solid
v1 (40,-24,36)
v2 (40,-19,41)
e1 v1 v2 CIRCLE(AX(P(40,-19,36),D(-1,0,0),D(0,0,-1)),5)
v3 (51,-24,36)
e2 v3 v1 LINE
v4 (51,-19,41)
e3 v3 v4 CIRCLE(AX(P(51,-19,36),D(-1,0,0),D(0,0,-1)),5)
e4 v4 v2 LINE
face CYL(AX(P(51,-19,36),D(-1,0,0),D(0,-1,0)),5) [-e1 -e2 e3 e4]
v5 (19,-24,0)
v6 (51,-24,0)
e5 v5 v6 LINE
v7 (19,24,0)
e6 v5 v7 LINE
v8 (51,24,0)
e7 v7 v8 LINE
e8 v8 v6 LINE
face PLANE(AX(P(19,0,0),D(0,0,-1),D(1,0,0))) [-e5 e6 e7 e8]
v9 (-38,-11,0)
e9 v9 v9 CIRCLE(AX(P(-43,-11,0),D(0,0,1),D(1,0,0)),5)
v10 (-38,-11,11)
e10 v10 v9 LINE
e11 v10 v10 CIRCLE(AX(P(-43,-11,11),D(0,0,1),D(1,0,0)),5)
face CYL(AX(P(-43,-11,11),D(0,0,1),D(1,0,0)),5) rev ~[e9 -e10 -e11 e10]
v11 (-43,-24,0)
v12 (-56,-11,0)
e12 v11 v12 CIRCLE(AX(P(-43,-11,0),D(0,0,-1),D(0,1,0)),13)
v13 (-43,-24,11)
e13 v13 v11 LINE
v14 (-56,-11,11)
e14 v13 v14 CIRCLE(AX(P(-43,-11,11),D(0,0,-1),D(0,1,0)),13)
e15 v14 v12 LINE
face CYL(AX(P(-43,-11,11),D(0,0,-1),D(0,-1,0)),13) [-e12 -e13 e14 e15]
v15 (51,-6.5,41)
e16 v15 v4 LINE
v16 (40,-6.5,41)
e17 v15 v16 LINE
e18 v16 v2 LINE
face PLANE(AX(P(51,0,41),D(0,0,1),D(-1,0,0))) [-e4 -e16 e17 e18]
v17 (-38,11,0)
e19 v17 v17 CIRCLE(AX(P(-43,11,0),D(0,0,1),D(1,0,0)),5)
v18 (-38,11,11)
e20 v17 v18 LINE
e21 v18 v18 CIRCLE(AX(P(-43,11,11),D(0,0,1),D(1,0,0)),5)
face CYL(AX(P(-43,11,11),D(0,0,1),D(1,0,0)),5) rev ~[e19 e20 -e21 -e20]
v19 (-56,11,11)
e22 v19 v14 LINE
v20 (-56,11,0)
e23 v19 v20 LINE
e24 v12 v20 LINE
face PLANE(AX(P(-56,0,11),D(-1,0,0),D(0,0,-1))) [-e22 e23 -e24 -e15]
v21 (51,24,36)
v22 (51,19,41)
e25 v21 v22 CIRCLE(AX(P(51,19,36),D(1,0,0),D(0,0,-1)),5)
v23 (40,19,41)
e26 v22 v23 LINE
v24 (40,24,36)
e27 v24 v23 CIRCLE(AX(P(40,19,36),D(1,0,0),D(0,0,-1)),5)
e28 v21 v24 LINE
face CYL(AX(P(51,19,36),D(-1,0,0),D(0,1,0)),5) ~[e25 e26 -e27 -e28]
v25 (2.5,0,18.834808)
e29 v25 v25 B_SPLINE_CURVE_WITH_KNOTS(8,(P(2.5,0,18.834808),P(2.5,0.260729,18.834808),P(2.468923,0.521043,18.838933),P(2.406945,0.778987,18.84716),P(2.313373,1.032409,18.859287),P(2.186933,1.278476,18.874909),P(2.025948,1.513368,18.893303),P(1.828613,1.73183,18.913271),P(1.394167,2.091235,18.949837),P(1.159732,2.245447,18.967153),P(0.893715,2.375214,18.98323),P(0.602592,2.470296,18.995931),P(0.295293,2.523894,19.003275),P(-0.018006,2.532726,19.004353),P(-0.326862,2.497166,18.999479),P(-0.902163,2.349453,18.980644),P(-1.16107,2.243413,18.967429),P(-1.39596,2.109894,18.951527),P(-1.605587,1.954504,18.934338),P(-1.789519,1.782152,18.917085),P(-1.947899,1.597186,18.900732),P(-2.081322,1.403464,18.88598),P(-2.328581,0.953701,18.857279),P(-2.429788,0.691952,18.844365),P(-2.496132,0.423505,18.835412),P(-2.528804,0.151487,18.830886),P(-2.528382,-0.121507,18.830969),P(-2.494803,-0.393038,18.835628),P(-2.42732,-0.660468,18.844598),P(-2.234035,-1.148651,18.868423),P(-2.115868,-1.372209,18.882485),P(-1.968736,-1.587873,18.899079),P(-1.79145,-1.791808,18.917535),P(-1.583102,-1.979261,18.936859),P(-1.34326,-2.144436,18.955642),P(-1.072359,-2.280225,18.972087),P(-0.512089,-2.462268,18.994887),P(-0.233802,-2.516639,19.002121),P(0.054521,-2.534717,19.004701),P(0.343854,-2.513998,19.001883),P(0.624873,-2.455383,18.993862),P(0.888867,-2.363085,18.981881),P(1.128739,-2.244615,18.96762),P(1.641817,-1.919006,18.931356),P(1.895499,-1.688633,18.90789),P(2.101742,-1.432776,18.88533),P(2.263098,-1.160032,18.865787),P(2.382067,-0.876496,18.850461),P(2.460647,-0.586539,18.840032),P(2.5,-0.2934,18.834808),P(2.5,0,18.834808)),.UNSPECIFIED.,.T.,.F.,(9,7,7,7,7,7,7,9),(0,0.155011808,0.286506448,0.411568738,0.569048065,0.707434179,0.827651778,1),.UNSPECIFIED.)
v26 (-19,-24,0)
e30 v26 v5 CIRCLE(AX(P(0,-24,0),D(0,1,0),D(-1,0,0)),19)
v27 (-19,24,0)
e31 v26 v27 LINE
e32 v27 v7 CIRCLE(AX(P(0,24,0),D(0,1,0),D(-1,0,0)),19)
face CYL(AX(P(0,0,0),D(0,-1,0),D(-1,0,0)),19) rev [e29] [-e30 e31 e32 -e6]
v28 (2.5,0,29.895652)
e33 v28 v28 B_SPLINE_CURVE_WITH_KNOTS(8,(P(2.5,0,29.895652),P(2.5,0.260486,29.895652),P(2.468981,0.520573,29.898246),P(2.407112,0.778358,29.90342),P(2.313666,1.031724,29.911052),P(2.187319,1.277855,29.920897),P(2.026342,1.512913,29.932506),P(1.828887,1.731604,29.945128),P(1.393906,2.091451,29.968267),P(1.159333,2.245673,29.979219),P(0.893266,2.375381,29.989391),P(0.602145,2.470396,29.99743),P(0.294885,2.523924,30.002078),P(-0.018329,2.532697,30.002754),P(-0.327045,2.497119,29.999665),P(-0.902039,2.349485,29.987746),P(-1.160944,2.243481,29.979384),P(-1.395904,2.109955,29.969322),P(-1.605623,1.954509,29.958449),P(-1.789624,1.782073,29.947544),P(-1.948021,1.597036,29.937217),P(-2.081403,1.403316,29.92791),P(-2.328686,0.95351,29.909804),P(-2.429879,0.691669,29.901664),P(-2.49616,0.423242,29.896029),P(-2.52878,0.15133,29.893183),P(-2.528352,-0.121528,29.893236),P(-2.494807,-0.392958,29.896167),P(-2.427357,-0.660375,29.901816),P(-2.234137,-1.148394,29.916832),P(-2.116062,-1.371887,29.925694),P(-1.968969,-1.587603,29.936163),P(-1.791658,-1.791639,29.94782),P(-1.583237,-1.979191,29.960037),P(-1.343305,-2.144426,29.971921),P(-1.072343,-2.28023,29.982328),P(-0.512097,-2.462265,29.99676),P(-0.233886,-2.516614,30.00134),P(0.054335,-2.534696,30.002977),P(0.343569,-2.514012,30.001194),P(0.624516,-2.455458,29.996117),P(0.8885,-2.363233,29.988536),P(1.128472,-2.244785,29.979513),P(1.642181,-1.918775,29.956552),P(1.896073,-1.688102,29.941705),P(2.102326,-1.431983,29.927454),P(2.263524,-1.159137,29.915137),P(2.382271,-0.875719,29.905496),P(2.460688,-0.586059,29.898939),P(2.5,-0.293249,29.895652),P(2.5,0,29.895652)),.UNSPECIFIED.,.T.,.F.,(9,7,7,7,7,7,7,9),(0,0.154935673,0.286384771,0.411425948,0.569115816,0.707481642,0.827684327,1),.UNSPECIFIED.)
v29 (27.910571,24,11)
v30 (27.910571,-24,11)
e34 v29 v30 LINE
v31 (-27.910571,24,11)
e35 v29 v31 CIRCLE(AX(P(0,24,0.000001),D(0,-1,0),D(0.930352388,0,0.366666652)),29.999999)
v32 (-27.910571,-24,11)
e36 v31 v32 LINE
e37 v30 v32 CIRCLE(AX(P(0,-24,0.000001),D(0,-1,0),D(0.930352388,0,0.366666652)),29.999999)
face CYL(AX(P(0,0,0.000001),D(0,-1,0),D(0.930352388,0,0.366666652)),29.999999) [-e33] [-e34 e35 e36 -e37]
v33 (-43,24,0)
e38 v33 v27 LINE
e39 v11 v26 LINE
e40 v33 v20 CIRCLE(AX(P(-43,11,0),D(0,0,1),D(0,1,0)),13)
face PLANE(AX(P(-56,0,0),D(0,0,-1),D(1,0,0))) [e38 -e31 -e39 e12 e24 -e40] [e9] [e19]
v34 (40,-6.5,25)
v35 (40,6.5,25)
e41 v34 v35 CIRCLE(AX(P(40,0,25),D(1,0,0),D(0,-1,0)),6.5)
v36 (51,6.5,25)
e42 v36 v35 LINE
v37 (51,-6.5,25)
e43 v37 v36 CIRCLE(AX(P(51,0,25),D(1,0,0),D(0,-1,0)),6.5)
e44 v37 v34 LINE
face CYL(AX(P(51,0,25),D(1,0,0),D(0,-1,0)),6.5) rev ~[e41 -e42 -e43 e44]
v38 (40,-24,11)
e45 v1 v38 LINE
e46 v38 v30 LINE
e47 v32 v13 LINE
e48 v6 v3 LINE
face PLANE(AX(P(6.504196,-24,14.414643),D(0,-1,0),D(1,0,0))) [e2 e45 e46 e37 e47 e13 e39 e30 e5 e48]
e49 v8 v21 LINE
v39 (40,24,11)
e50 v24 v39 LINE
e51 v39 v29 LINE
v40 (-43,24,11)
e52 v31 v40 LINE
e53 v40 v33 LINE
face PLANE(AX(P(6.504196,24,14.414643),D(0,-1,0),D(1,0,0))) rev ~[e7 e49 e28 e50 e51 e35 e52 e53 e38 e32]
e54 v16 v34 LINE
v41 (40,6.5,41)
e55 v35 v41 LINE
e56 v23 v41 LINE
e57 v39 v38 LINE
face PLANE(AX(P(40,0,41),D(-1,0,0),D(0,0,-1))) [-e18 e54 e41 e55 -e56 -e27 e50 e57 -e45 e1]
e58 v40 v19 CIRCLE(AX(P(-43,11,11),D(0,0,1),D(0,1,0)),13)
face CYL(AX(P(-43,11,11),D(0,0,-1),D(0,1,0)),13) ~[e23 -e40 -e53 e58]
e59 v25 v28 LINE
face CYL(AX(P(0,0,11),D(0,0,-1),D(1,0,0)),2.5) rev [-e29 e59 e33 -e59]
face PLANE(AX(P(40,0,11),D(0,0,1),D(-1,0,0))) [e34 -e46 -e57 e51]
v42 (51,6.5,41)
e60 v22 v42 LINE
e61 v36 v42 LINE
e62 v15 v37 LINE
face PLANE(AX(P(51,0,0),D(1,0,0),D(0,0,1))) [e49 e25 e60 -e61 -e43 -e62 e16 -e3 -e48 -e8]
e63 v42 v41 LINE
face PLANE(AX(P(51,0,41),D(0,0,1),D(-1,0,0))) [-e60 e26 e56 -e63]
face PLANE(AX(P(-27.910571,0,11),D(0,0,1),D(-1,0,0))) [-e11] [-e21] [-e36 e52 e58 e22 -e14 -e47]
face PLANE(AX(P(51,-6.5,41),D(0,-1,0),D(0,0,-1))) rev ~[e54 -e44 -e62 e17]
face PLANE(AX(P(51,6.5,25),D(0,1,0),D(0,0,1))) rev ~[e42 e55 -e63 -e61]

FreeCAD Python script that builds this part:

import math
import FreeCAD as App
import Part
import Sketcher
from FreeCAD import Vector


def edges_at(feature, points):
    """Names of the edges that pass closest to the given points."""
    edges = feature.Shape.Edges
    near = lambda p: min(range(len(edges)), key=lambda i: edges[i].distToShape(Part.Vertex(*p))[0])
    return sorted({f"Edge{near(p) + 1}" for p in points})

doc = App.newDocument("Part")
body = doc.addObject("PartDesign::Body", "Body")

# Sketch on XZ plane
sketch1 = body.newObject("Sketcher::SketchObject", "Sketch")
sketch1.AttachmentSupport = (doc.getObject("XZ_Plane"), [""])
sketch1.MapMode = "FlatFace"
sketch1.addGeometry(Part.LineSegment(Vector(19, 0, 0), Vector(51, 0, 0)), False)
sketch1.addGeometry(Part.LineSegment(Vector(51, 0, 0), Vector(51, 41, 0)), False)
sketch1.addGeometry(Part.LineSegment(Vector(51, 41, 0), Vector(40, 41, 0)), False)
sketch1.addGeometry(Part.LineSegment(Vector(40, 41, 0), Vector(40, 11, 0)), False)
sketch1.addGeometry(Part.LineSegment(Vector(40, 11, 0), Vector(27.910571, 11, 0)), False)
sketch1.addGeometry(Part.ArcOfCircle(Part.Circle(Vector(0, 0.000001, 0), Vector(0, 0, 1), 29.999999), math.radians(21.510187), math.radians(158.489813)), False)
sketch1.addGeometry(Part.LineSegment(Vector(-27.910571, 11, 0), Vector(-56, 11, 0)), False)
sketch1.addGeometry(Part.LineSegment(Vector(-56, 11, 0), Vector(-56, 0, 0)), False)
sketch1.addGeometry(Part.LineSegment(Vector(-56, 0, 0), Vector(-19, 0, 0)), False)
sketch1.addGeometry(Part.ArcOfCircle(Part.Circle(Vector(0, 0, 0), Vector(0, 0, 1), 19), math.radians(0), math.radians(180)), False)
sketch1.addConstraint(Sketcher.Constraint("Coincident", 0, 2, 1, 1))
sketch1.addConstraint(Sketcher.Constraint("Coincident", 1, 2, 2, 1))
sketch1.addConstraint(Sketcher.Constraint("Coincident", 2, 2, 3, 1))
sketch1.addConstraint(Sketcher.Constraint("Coincident", 3, 2, 4, 1))
sketch1.addConstraint(Sketcher.Constraint("Coincident", 4, 2, 5, 1))
sketch1.addConstraint(Sketcher.Constraint("Coincident", 5, 2, 6, 1))
sketch1.addConstraint(Sketcher.Constraint("Coincident", 6, 2, 7, 1))
sketch1.addConstraint(Sketcher.Constraint("Coincident", 7, 2, 8, 1))
sketch1.addConstraint(Sketcher.Constraint("Coincident", 8, 2, 9, 2))
sketch1.addConstraint(Sketcher.Constraint("Coincident", 9, 1, 0, 1))
sketch1.addConstraint(Sketcher.Constraint("Horizontal", 0))
sketch1.addConstraint(Sketcher.Constraint("Vertical", 1))
sketch1.addConstraint(Sketcher.Constraint("Horizontal", 2))
sketch1.addConstraint(Sketcher.Constraint("Vertical", 3))
sketch1.addConstraint(Sketcher.Constraint("Horizontal", 4))
sketch1.addConstraint(Sketcher.Constraint("Horizontal", 6))
sketch1.addConstraint(Sketcher.Constraint("Vertical", 7))
sketch1.addConstraint(Sketcher.Constraint("Horizontal", 8))
sketch1.addConstraint(Sketcher.Constraint("Coincident", 5, 3, -1, 1))
sketch1.addConstraint(Sketcher.Constraint("Coincident", 9, 3, -1, 1))
sketch1.addConstraint(Sketcher.Constraint("PointOnObject", 0, 2, -1))
sketch1.addConstraint(Sketcher.Constraint("PointOnObject", 7, 2, -1))
sketch1.addConstraint(Sketcher.Constraint("Horizontal", 4, 2, 5, 2))
sketch1.addConstraint(Sketcher.Constraint("Equal", 2, 7))
sketch1.addConstraint(Sketcher.Constraint("Radius", 5, 29.999999))
sketch1.addConstraint(Sketcher.Constraint("Radius", 9, 19.0))
sketch1.addConstraint(Sketcher.Constraint("DistanceX", 0, 1, 0, 2, 32.0))
sketch1.addConstraint(Sketcher.Constraint("DistanceX", 2, 2, 2, 1, 11.0))
sketch1.addConstraint(Sketcher.Constraint("DistanceX", 8, 1, 8, 2, 37.0))
sketch1.addConstraint(Sketcher.Constraint("DistanceY", 1, 1, 1, 2, 41.0))
pad1 = body.newObject("PartDesign::Pad", "Pad")
pad1.Profile = sketch1
pad1.Length = 48
pad1.Midplane = True

# Sketch on YZ plane
sketch2 = body.newObject("Sketcher::SketchObject", "Sketch001")
sketch2.AttachmentSupport = (doc.getObject("YZ_Plane"), [""])
sketch2.MapMode = "FlatFace"
sketch2.AttachmentOffset = App.Placement(Vector(0, 0, 51), App.Rotation())
sketch2.addGeometry(Part.ArcOfCircle(Part.Circle(Vector(0, 25, 0), Vector(0, 0, 1), 6.5), math.radians(180), math.radians(360)), False)
sketch2.addGeometry(Part.LineSegment(Vector(6.5, 25, 0), Vector(6.5, 41, 0)), False)
sketch2.addGeometry(Part.LineSegment(Vector(6.5, 41, 0), Vector(-6.5, 41, 0)), False)
sketch2.addGeometry(Part.LineSegment(Vector(-6.5, 41, 0), Vector(-6.5, 25, 0)), False)
sketch2.addConstraint(Sketcher.Constraint("Tangent", 0, 2, 1, 1))
sketch2.addConstraint(Sketcher.Constraint("Coincident", 1, 2, 2, 1))
sketch2.addConstraint(Sketcher.Constraint("Coincident", 2, 2, 3, 1))
sketch2.addConstraint(Sketcher.Constraint("Tangent", 3, 2, 0, 1))
sketch2.addConstraint(Sketcher.Constraint("Vertical", 1))
sketch2.addConstraint(Sketcher.Constraint("Horizontal", 2))
sketch2.addConstraint(Sketcher.Constraint("Vertical", 3))
sketch2.addConstraint(Sketcher.Constraint("PointOnObject", 0, 3, -2))
sketch2.addConstraint(Sketcher.Constraint("Radius", 0, 6.5))
sketch2.addConstraint(Sketcher.Constraint("DistanceY", 1, 1, 1, 2, 16.0))
sketch2.addConstraint(Sketcher.Constraint("DistanceY", -1, 1, 0, 3, 25.0))
pocket1 = body.newObject("PartDesign::Pocket", "Pocket")
pocket1.Profile = sketch2
pocket1.Length = 11
doc.recompute()

fillet = body.newObject("PartDesign::Fillet", "Fillet")
fillet.Base = (pocket1, edges_at(pocket1, [(-56, -24, 5.5), (-56, 24, 5.5)]))
fillet.Radius = 13
doc.recompute()

fillet2 = body.newObject("PartDesign::Fillet", "Fillet001")
fillet2.Base = (fillet, edges_at(fillet, [(45.5, -24, 41), (45.5, 24, 41)]))
fillet2.Radius = 5

# Sketch on XY plane
sketch3 = body.newObject("Sketcher::SketchObject", "Sketch002")
sketch3.AttachmentSupport = (doc.getObject("XY_Plane"), [""])
sketch3.MapMode = "FlatFace"
sketch3.AttachmentOffset = App.Placement(Vector(0, 0, 11), App.Rotation())
sketch3.addGeometry(Part.Circle(Vector(0, 0, 0), Vector(0, 0, 1), 2.5), False)
sketch3.addGeometry(Part.Circle(Vector(-43, -11, 0), Vector(0, 0, 1), 5), False)
sketch3.addGeometry(Part.Circle(Vector(-43, 11, 0), Vector(0, 0, 1), 5), False)
sketch3.addConstraint(Sketcher.Constraint("Coincident", 0, 3, -1, 1))
sketch3.addConstraint(Sketcher.Constraint("Equal", 1, 2))
sketch3.addConstraint(Sketcher.Constraint("Symmetric", 1, 3, 2, 3, -1))
sketch3.addConstraint(Sketcher.Constraint("Diameter", 0, 5.0))
sketch3.addConstraint(Sketcher.Constraint("Diameter", 1, 10.0))
sketch3.addConstraint(Sketcher.Constraint("DistanceX", 1, 3, -1, 1, 43.0))
sketch3.addConstraint(Sketcher.Constraint("DistanceY", 1, 3, -1, 1, 11.0))
pocket2 = body.newObject("PartDesign::Pocket", "Pocket001")
pocket2.Profile = sketch3
pocket2.Length = 76.2
pocket2.Midplane = True

doc.recompute()
